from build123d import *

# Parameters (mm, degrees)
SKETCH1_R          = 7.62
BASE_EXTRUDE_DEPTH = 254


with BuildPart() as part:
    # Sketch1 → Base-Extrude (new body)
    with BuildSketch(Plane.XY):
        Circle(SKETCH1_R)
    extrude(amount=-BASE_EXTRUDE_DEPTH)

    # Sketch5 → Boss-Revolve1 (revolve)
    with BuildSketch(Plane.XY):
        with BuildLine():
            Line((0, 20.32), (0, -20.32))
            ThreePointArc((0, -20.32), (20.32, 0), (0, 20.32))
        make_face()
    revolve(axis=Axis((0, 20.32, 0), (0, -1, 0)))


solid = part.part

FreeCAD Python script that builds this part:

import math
import FreeCAD as App
import Part
import Sketcher

V = App.Vector
Q = App.Units.Quantity

doc = App.newDocument("Part")
body = doc.addObject("PartDesign::Body", "Body")

sketch1 = body.newObject("Sketcher::SketchObject", "Sketch")
sketch1.AttachmentSupport = (doc.getObject("XY_Plane"), [""])
sketch1.MapMode = "FlatFace"
sketch1.addGeometry(Part.Circle(V(0, 0, 0), V(0, 0, 1), 8), False)
sketch1.addConstraint([
    Sketcher.Constraint("Coincident", 0, 3, -1, 1),
    Sketcher.Constraint("Diameter", 0, Q("0.6 in")),
])
pad1 = body.newObject("PartDesign::Pad", "Pad")
pad1.Profile = sketch1
pad1.Length = Q("10 in")
pad1.Reversed = True

sketch2 = body.newObject("Sketcher::SketchObject", "Sketch001")
sketch2.AttachmentSupport = (doc.getObject("XY_Plane"), [""])
sketch2.MapMode = "FlatFace"
sketch2.addGeometry([
    Part.LineSegment(V(0, 20, 0), V(0, -20, 0)),
    Part.ArcOfCircle(Part.Circle(V(0, 0, 0), V(0, 0, 1), 20), math.radians(-90), math.radians(90)),
], False)
sketch2.addConstraint([
    Sketcher.Constraint("Coincident", 0, 1, 1, 2),
    Sketcher.Constraint("Coincident", 1, 1, 0, 2),
    Sketcher.Constraint("Vertical", 0),
    Sketcher.Constraint("Coincident", 1, 3, -1, 1),
    Sketcher.Constraint("PointOnObject", 0, 1, -2),
    Sketcher.Constraint("Radius", 1, Q("0.8 in")),
])
revolution = body.newObject("PartDesign::Revolution", "Revolution")
revolution.Profile = sketch2
revolution.ReferenceAxis = (sketch2, ["V_Axis"])
revolution.Angle = 360

doc.recompute()
